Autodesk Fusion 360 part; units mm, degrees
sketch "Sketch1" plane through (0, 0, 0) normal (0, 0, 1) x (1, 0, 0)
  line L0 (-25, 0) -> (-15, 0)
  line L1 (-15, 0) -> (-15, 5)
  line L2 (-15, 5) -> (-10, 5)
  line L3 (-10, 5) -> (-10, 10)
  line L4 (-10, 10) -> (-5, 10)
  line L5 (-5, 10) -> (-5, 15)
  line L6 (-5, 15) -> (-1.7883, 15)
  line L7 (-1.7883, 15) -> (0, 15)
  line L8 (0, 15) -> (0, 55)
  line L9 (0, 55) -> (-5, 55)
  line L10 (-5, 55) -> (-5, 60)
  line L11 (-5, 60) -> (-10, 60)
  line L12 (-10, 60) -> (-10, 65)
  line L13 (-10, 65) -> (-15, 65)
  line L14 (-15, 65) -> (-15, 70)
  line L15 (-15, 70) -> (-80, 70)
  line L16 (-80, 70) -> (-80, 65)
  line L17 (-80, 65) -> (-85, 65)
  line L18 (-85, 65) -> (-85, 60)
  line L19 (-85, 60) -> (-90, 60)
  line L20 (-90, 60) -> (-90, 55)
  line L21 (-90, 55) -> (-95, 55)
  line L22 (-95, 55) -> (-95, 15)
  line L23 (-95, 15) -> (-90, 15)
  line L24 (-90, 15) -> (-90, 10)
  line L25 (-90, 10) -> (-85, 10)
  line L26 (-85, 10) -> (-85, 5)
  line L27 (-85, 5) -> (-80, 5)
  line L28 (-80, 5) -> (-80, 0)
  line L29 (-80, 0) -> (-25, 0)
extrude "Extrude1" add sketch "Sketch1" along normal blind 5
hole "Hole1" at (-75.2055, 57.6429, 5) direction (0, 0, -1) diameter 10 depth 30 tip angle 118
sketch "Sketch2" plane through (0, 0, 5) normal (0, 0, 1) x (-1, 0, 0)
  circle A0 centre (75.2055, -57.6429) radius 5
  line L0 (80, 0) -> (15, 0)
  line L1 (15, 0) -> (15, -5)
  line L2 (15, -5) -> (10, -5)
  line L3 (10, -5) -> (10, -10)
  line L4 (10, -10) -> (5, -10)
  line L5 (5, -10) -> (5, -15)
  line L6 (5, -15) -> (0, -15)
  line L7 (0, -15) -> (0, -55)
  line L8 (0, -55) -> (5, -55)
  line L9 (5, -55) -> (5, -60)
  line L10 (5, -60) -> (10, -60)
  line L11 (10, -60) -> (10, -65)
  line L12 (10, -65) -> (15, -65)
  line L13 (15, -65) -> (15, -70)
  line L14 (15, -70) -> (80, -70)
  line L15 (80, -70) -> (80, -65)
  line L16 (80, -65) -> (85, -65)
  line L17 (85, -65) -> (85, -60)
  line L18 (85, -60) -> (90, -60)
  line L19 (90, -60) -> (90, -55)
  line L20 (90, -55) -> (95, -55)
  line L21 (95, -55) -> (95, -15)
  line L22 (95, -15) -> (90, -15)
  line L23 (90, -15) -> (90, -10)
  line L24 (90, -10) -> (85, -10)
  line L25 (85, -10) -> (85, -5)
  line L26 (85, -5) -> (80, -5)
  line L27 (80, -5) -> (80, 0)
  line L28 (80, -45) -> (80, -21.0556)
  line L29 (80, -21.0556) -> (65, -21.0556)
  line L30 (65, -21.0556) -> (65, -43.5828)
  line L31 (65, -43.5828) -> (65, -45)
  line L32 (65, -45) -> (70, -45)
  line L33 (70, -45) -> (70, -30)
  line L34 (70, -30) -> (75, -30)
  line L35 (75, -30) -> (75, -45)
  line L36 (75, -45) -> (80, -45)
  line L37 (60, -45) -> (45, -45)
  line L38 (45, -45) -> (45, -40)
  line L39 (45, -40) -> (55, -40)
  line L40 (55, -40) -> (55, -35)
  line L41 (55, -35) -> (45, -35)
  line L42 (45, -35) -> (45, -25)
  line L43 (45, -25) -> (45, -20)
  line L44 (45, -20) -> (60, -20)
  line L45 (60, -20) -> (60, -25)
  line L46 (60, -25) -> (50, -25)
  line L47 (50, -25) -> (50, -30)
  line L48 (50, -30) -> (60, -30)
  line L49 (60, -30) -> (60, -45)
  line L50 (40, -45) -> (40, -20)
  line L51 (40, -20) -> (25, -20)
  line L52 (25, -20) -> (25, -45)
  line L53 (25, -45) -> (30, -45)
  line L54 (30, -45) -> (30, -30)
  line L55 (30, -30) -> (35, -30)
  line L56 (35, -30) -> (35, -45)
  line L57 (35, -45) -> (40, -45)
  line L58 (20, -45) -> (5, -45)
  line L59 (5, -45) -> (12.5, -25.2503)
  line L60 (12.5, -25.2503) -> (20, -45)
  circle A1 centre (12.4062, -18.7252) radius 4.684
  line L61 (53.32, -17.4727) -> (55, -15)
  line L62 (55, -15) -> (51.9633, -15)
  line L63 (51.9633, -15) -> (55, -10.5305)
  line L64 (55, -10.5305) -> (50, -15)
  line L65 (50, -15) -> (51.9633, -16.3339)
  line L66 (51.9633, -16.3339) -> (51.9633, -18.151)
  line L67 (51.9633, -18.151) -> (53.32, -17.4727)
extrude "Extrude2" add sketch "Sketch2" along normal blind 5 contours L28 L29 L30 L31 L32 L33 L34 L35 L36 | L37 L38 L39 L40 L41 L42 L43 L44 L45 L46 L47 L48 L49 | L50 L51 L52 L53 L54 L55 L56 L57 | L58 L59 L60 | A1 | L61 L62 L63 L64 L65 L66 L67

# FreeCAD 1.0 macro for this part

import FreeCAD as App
import Part
import Sketcher

V = App.Vector


def add_polygon(sketch, points):
    """Adds a closed chain of lines whose ends are joined by coincident constraints."""
    first, n = sketch.GeometryCount, len(points)
    for a, b in zip(points, points[1:] + points[:1]):
        sketch.addGeometry(Part.LineSegment(App.Vector(*a, 0), App.Vector(*b, 0)), False)
    for i in range(n):
        sketch.addConstraint(Sketcher.Constraint("Coincident", first + i, 2, first + (i + 1) % n, 1))

doc = App.newDocument("Part")
body = doc.addObject("PartDesign::Body", "Body")

sketch1 = body.newObject("Sketcher::SketchObject", "Sketch")
sketch1.AttachmentSupport = (doc.getObject("XY_Plane"), [""])
sketch1.MapMode = "FlatFace"
add_polygon(sketch1, [(-80, 0), (-15, 0), (-15, 5), (-10, 5), (-10, 10), (-5, 10), (-5, 15), (0, 15), (0, 55), (-5, 55), (-5, 60), (-10, 60), (-10, 65), (-15, 65), (-15, 70), (-80, 70), (-80, 65), (-85, 65), (-85, 60), (-90, 60), (-90, 55), (-95, 55), (-95, 15), (-90, 15), (-90, 10), (-85, 10), (-85, 5), (-80, 5)])
sketch1.addConstraint([
    Sketcher.Constraint("Horizontal", 0),
    Sketcher.Constraint("Vertical", 1),
    Sketcher.Constraint("Horizontal", 2),
    Sketcher.Constraint("Vertical", 3),
    Sketcher.Constraint("Horizontal", 4),
    Sketcher.Constraint("Vertical", 5),
    Sketcher.Constraint("Horizontal", 6),
    Sketcher.Constraint("Vertical", 7),
    Sketcher.Constraint("Horizontal", 8),
    Sketcher.Constraint("Vertical", 9),
    Sketcher.Constraint("Horizontal", 10),
    Sketcher.Constraint("Vertical", 11),
    Sketcher.Constraint("Horizontal", 12),
    Sketcher.Constraint("Vertical", 13),
    Sketcher.Constraint("Horizontal", 14),
    Sketcher.Constraint("Vertical", 15),
    Sketcher.Constraint("Horizontal", 16),
    Sketcher.Constraint("Vertical", 17),
    Sketcher.Constraint("Horizontal", 18),
    Sketcher.Constraint("Vertical", 19),
    Sketcher.Constraint("Horizontal", 20),
    Sketcher.Constraint("Vertical", 21),
    Sketcher.Constraint("Horizontal", 22),
    Sketcher.Constraint("Vertical", 23),
    Sketcher.Constraint("Horizontal", 24),
    Sketcher.Constraint("Vertical", 25),
    Sketcher.Constraint("Horizontal", 26),
    Sketcher.Constraint("Vertical", 27),
    Sketcher.Constraint("PointOnObject", 0, 2, -1),
    Sketcher.Constraint("PointOnObject", 6, 2, -2),
    Sketcher.Constraint("Horizontal", 12, 2, 15, 2),
    Sketcher.Constraint("Horizontal", 10, 2, 17, 2),
    Sketcher.Constraint("Horizontal", 8, 2, 19, 2),
    Sketcher.Constraint("Horizontal", 6, 2, 21, 2),
    Sketcher.Constraint("Horizontal", 4, 2, 23, 2),
    Sketcher.Constraint("Horizontal", 2, 2, 25, 2),
    Sketcher.Constraint("Vertical", 5, 2, 8, 2),
    Sketcher.Constraint("Vertical", 3, 2, 10, 2),
    Sketcher.Constraint("Vertical", 1, 2, 12, 2),
    Sketcher.Constraint("Vertical", 19, 2, 22, 2),
    Sketcher.Constraint("Vertical", 17, 2, 24, 2),
    Sketcher.Constraint("Vertical", 15, 2, 26, 2),
    Sketcher.Constraint("Equal", 2, 4),
    Sketcher.Constraint("Equal", 4, 6),
    Sketcher.Constraint("Equal", 12, 16),
    Sketcher.Constraint("Equal", 16, 18),
    Sketcher.Constraint("Equal", 18, 20),
    Sketcher.Constraint("Equal", 26, 1),
    Sketcher.Constraint("Equal", 1, 3),
    Sketcher.Constraint("Equal", 3, 5),
    Sketcher.Constraint("Equal", 5, 9),
    Sketcher.Constraint("Equal", 9, 11),
    Sketcher.Constraint("Equal", 11, 13),
    Sketcher.Constraint("DistanceX", 0, 1, 0, 2, 65.0),
    Sketcher.Constraint("DistanceX", 2, 1, 2, 2, 5.0),
    Sketcher.Constraint("DistanceY", 7, 1, 7, 2, 40.0),
])
pad1 = body.newObject("PartDesign::Pad", "Pad")
pad1.Profile = sketch1
pad1.Length = 5

sketch2 = body.newObject("Sketcher::SketchObject", "Sketch001")
sketch2.AttachmentSupport = (doc.getObject("XY_Plane"), [""])
sketch2.MapMode = "FlatFace"
sketch2.AttachmentOffset = App.Placement(V(0, 0, 5), App.Rotation())
sketch2.addGeometry(Part.Circle(V(-75.2055, 57.6429, 0), V(0, 0, 1), 5), False)
sketch2.addConstraint([
    Sketcher.Constraint("Diameter", 0, 10.0),
    Sketcher.Constraint("DistanceY", -1, 1, 0, 3, 57.643),
    Sketcher.Constraint("DistanceX", 0, 3, -1, 1, 75.2055),
])
doc.recompute()
hole = body.newObject("PartDesign::Hole", "Hole")
hole.Profile = sketch2
hole.ThreadType = "None"
hole.Diameter = 10
hole.DepthType = "Dimension"
hole.Depth = 30
hole.DrillPoint = "Angled"
hole.DrillPointAngle = 118

sketch3 = body.newObject("Sketcher::SketchObject", "Sketch002")
sketch3.AttachmentSupport = (doc.getObject("XY_Plane"), [""])
sketch3.MapMode = "FlatFace"
sketch3.AttachmentOffset = App.Placement(V(0, 0, 5), App.Rotation())
add_polygon(sketch3, [(-75, 45), (-80, 45), (-80, 21.0556), (-65, 21.0556), (-65, 45), (-70, 45), (-70, 30), (-75, 30)])
add_polygon(sketch3, [(-45, 45), (-60, 45), (-60, 30), (-50, 30), (-50, 25), (-60, 25), (-60, 20), (-45, 20), (-45, 35), (-55, 35), (-55, 40), (-45, 40)])
add_polygon(sketch3, [(-35, 45), (-40, 45), (-40, 20), (-25, 20), (-25, 45), (-30, 45), (-30, 30), (-35, 30)])
add_polygon(sketch3, [(-5, 45), (-20, 45), (-12.5, 25.2503)])
sketch3.addGeometry(Part.Circle(V(-12.4062, 18.7252, 0), V(0, 0, 1), 4.684), False)
add_polygon(sketch3, [(-51.9633, 18.151), (-53.32, 17.4727), (-55, 15), (-51.9633, 15), (-55, 10.5305), (-50, 15), (-51.9633, 16.3339)])
sketch3.addConstraint([
    Sketcher.Constraint("Horizontal", 0),
    Sketcher.Constraint("Vertical", 1),
    Sketcher.Constraint("Horizontal", 2),
    Sketcher.Constraint("Vertical", 3),
    Sketcher.Constraint("Horizontal", 4),
    Sketcher.Constraint("Vertical", 5),
    Sketcher.Constraint("Horizontal", 6),
    Sketcher.Constraint("Vertical", 7),
    Sketcher.Constraint("Horizontal", 8),
    Sketcher.Constraint("Vertical", 9),
    Sketcher.Constraint("Horizontal", 10),
    Sketcher.Constraint("Vertical", 11),
    Sketcher.Constraint("Horizontal", 12),
    Sketcher.Constraint("Vertical", 13),
    Sketcher.Constraint("Horizontal", 14),
    Sketcher.Constraint("Vertical", 15),
    Sketcher.Constraint("Horizontal", 16),
    Sketcher.Constraint("Vertical", 17),
    Sketcher.Constraint("Horizontal", 18),
    Sketcher.Constraint("Vertical", 19),
    Sketcher.Constraint("Horizontal", 20),
    Sketcher.Constraint("Vertical", 21),
    Sketcher.Constraint("Horizontal", 22),
    Sketcher.Constraint("Vertical", 23),
    Sketcher.Constraint("Horizontal", 24),
    Sketcher.Constraint("Vertical", 25),
    Sketcher.Constraint("Horizontal", 26),
    Sketcher.Constraint("Vertical", 27),
    Sketcher.Constraint("Horizontal", 28),
    Sketcher.Constraint("Horizontal", 34),
    Sketcher.Constraint("Vertical", 38),
    Sketcher.Constraint("Parallel", 33, 35),
    Sketcher.Constraint("Perpendicular", 35, 37),
    Sketcher.Constraint("Horizontal", 0, 2, 3, 2),
    Sketcher.Constraint("Horizontal", 7, 2, 8, 2),
    Sketcher.Constraint("Horizontal", 6, 2, 9, 2),
    Sketcher.Constraint("Horizontal", 19, 2, 20, 2),
    Sketcher.Constraint("Horizontal", 14, 2, 21, 2),
    Sketcher.Constraint("Horizontal", 20, 2, 23, 2),
    Sketcher.Constraint("Horizontal", 10, 2, 25, 2),
    Sketcher.Constraint("Horizontal", 27, 2, 28, 2),
    Sketcher.Constraint("Horizontal", 34, 2, 36, 2),
    Sketcher.Constraint("Vertical", 9, 2, 12, 2),
    Sketcher.Constraint("Vertical", 15, 2, 18, 2),
    Sketcher.Constraint("Vertical", 17, 2, 33, 2),
    Sketcher.Constraint("Vertical", 33, 2, 35, 2),
    Sketcher.Constraint("Vertical", 11, 2, 36, 2),
    Sketcher.Constraint("Vertical", 34, 2, 37, 2),
    Sketcher.Constraint("Equal", 0, 4),
    Sketcher.Constraint("Equal", 4, 6),
    Sketcher.Constraint("Equal", 2, 8),
    Sketcher.Constraint("Equal", 12, 16),
    Sketcher.Constraint("Equal", 6, 20),
    Sketcher.Constraint("Equal", 14, 22),
    Sketcher.Constraint("Equal", 20, 24),
    Sketcher.Constraint("Equal", 22, 28),
    Sketcher.Constraint("Equal", 28, 5),
    Sketcher.Constraint("Equal", 26, 11),
    Sketcher.Constraint("Equal", 11, 13),
    Sketcher.Constraint("Equal", 9, 15),
    Sketcher.Constraint("Equal", 13, 17),
    Sketcher.Constraint("Equal", 29, 30),
    Sketcher.Constraint("DistanceX", 0, 2, 0, 1, 5.0),
    Sketcher.Constraint("DistanceX", 10, 1, 10, 2, 10.0),
    Sketcher.Constraint("Diameter", 31, 9.368),
    Sketcher.Constraint("DistanceX", 0, 2, -1, 1, 80.0),
    Sketcher.Constraint("DistanceY", -1, 1, 0, 2, 45.0),
    Sketcher.Constraint("DistanceX", 8, 2, -1, 1, 60.0),
    Sketcher.Constraint("DistanceX", 20, 2, -1, 1, 40.0),
    Sketcher.Constraint("DistanceX", 28, 2, -1, 1, 20.0),
    Sketcher.Constraint("DistanceY", -1, 1, 33, 2, 15.0),
    Sketcher.Constraint("DistanceY", 38, 1, 38, 2, 1.817),
    Sketcher.Constraint("DistanceX", 32, 2, -1, 1, 53.32),
    Sketcher.Constraint("DistanceX", 34, 1, 34, 2, 3.0367),
    Sketcher.Constraint("DistanceY", 1, 2, 1, 1, 23.9444),
    Sketcher.Constraint("DistanceY", -1, 1, 37, 2, 16.334),
    Sketcher.Constraint("DistanceY", 31, 3, 29, 2, 6.525),
    Sketcher.Constraint("Distance", 29, 21.1258),
    Sketcher.Constraint("DistanceX", 31, 3, -1, 1, 12.4062),
])
pad2 = body.newObject("PartDesign::Pad", "Pad001")
pad2.Profile = sketch3
pad2.Length = 5

doc.recompute()
